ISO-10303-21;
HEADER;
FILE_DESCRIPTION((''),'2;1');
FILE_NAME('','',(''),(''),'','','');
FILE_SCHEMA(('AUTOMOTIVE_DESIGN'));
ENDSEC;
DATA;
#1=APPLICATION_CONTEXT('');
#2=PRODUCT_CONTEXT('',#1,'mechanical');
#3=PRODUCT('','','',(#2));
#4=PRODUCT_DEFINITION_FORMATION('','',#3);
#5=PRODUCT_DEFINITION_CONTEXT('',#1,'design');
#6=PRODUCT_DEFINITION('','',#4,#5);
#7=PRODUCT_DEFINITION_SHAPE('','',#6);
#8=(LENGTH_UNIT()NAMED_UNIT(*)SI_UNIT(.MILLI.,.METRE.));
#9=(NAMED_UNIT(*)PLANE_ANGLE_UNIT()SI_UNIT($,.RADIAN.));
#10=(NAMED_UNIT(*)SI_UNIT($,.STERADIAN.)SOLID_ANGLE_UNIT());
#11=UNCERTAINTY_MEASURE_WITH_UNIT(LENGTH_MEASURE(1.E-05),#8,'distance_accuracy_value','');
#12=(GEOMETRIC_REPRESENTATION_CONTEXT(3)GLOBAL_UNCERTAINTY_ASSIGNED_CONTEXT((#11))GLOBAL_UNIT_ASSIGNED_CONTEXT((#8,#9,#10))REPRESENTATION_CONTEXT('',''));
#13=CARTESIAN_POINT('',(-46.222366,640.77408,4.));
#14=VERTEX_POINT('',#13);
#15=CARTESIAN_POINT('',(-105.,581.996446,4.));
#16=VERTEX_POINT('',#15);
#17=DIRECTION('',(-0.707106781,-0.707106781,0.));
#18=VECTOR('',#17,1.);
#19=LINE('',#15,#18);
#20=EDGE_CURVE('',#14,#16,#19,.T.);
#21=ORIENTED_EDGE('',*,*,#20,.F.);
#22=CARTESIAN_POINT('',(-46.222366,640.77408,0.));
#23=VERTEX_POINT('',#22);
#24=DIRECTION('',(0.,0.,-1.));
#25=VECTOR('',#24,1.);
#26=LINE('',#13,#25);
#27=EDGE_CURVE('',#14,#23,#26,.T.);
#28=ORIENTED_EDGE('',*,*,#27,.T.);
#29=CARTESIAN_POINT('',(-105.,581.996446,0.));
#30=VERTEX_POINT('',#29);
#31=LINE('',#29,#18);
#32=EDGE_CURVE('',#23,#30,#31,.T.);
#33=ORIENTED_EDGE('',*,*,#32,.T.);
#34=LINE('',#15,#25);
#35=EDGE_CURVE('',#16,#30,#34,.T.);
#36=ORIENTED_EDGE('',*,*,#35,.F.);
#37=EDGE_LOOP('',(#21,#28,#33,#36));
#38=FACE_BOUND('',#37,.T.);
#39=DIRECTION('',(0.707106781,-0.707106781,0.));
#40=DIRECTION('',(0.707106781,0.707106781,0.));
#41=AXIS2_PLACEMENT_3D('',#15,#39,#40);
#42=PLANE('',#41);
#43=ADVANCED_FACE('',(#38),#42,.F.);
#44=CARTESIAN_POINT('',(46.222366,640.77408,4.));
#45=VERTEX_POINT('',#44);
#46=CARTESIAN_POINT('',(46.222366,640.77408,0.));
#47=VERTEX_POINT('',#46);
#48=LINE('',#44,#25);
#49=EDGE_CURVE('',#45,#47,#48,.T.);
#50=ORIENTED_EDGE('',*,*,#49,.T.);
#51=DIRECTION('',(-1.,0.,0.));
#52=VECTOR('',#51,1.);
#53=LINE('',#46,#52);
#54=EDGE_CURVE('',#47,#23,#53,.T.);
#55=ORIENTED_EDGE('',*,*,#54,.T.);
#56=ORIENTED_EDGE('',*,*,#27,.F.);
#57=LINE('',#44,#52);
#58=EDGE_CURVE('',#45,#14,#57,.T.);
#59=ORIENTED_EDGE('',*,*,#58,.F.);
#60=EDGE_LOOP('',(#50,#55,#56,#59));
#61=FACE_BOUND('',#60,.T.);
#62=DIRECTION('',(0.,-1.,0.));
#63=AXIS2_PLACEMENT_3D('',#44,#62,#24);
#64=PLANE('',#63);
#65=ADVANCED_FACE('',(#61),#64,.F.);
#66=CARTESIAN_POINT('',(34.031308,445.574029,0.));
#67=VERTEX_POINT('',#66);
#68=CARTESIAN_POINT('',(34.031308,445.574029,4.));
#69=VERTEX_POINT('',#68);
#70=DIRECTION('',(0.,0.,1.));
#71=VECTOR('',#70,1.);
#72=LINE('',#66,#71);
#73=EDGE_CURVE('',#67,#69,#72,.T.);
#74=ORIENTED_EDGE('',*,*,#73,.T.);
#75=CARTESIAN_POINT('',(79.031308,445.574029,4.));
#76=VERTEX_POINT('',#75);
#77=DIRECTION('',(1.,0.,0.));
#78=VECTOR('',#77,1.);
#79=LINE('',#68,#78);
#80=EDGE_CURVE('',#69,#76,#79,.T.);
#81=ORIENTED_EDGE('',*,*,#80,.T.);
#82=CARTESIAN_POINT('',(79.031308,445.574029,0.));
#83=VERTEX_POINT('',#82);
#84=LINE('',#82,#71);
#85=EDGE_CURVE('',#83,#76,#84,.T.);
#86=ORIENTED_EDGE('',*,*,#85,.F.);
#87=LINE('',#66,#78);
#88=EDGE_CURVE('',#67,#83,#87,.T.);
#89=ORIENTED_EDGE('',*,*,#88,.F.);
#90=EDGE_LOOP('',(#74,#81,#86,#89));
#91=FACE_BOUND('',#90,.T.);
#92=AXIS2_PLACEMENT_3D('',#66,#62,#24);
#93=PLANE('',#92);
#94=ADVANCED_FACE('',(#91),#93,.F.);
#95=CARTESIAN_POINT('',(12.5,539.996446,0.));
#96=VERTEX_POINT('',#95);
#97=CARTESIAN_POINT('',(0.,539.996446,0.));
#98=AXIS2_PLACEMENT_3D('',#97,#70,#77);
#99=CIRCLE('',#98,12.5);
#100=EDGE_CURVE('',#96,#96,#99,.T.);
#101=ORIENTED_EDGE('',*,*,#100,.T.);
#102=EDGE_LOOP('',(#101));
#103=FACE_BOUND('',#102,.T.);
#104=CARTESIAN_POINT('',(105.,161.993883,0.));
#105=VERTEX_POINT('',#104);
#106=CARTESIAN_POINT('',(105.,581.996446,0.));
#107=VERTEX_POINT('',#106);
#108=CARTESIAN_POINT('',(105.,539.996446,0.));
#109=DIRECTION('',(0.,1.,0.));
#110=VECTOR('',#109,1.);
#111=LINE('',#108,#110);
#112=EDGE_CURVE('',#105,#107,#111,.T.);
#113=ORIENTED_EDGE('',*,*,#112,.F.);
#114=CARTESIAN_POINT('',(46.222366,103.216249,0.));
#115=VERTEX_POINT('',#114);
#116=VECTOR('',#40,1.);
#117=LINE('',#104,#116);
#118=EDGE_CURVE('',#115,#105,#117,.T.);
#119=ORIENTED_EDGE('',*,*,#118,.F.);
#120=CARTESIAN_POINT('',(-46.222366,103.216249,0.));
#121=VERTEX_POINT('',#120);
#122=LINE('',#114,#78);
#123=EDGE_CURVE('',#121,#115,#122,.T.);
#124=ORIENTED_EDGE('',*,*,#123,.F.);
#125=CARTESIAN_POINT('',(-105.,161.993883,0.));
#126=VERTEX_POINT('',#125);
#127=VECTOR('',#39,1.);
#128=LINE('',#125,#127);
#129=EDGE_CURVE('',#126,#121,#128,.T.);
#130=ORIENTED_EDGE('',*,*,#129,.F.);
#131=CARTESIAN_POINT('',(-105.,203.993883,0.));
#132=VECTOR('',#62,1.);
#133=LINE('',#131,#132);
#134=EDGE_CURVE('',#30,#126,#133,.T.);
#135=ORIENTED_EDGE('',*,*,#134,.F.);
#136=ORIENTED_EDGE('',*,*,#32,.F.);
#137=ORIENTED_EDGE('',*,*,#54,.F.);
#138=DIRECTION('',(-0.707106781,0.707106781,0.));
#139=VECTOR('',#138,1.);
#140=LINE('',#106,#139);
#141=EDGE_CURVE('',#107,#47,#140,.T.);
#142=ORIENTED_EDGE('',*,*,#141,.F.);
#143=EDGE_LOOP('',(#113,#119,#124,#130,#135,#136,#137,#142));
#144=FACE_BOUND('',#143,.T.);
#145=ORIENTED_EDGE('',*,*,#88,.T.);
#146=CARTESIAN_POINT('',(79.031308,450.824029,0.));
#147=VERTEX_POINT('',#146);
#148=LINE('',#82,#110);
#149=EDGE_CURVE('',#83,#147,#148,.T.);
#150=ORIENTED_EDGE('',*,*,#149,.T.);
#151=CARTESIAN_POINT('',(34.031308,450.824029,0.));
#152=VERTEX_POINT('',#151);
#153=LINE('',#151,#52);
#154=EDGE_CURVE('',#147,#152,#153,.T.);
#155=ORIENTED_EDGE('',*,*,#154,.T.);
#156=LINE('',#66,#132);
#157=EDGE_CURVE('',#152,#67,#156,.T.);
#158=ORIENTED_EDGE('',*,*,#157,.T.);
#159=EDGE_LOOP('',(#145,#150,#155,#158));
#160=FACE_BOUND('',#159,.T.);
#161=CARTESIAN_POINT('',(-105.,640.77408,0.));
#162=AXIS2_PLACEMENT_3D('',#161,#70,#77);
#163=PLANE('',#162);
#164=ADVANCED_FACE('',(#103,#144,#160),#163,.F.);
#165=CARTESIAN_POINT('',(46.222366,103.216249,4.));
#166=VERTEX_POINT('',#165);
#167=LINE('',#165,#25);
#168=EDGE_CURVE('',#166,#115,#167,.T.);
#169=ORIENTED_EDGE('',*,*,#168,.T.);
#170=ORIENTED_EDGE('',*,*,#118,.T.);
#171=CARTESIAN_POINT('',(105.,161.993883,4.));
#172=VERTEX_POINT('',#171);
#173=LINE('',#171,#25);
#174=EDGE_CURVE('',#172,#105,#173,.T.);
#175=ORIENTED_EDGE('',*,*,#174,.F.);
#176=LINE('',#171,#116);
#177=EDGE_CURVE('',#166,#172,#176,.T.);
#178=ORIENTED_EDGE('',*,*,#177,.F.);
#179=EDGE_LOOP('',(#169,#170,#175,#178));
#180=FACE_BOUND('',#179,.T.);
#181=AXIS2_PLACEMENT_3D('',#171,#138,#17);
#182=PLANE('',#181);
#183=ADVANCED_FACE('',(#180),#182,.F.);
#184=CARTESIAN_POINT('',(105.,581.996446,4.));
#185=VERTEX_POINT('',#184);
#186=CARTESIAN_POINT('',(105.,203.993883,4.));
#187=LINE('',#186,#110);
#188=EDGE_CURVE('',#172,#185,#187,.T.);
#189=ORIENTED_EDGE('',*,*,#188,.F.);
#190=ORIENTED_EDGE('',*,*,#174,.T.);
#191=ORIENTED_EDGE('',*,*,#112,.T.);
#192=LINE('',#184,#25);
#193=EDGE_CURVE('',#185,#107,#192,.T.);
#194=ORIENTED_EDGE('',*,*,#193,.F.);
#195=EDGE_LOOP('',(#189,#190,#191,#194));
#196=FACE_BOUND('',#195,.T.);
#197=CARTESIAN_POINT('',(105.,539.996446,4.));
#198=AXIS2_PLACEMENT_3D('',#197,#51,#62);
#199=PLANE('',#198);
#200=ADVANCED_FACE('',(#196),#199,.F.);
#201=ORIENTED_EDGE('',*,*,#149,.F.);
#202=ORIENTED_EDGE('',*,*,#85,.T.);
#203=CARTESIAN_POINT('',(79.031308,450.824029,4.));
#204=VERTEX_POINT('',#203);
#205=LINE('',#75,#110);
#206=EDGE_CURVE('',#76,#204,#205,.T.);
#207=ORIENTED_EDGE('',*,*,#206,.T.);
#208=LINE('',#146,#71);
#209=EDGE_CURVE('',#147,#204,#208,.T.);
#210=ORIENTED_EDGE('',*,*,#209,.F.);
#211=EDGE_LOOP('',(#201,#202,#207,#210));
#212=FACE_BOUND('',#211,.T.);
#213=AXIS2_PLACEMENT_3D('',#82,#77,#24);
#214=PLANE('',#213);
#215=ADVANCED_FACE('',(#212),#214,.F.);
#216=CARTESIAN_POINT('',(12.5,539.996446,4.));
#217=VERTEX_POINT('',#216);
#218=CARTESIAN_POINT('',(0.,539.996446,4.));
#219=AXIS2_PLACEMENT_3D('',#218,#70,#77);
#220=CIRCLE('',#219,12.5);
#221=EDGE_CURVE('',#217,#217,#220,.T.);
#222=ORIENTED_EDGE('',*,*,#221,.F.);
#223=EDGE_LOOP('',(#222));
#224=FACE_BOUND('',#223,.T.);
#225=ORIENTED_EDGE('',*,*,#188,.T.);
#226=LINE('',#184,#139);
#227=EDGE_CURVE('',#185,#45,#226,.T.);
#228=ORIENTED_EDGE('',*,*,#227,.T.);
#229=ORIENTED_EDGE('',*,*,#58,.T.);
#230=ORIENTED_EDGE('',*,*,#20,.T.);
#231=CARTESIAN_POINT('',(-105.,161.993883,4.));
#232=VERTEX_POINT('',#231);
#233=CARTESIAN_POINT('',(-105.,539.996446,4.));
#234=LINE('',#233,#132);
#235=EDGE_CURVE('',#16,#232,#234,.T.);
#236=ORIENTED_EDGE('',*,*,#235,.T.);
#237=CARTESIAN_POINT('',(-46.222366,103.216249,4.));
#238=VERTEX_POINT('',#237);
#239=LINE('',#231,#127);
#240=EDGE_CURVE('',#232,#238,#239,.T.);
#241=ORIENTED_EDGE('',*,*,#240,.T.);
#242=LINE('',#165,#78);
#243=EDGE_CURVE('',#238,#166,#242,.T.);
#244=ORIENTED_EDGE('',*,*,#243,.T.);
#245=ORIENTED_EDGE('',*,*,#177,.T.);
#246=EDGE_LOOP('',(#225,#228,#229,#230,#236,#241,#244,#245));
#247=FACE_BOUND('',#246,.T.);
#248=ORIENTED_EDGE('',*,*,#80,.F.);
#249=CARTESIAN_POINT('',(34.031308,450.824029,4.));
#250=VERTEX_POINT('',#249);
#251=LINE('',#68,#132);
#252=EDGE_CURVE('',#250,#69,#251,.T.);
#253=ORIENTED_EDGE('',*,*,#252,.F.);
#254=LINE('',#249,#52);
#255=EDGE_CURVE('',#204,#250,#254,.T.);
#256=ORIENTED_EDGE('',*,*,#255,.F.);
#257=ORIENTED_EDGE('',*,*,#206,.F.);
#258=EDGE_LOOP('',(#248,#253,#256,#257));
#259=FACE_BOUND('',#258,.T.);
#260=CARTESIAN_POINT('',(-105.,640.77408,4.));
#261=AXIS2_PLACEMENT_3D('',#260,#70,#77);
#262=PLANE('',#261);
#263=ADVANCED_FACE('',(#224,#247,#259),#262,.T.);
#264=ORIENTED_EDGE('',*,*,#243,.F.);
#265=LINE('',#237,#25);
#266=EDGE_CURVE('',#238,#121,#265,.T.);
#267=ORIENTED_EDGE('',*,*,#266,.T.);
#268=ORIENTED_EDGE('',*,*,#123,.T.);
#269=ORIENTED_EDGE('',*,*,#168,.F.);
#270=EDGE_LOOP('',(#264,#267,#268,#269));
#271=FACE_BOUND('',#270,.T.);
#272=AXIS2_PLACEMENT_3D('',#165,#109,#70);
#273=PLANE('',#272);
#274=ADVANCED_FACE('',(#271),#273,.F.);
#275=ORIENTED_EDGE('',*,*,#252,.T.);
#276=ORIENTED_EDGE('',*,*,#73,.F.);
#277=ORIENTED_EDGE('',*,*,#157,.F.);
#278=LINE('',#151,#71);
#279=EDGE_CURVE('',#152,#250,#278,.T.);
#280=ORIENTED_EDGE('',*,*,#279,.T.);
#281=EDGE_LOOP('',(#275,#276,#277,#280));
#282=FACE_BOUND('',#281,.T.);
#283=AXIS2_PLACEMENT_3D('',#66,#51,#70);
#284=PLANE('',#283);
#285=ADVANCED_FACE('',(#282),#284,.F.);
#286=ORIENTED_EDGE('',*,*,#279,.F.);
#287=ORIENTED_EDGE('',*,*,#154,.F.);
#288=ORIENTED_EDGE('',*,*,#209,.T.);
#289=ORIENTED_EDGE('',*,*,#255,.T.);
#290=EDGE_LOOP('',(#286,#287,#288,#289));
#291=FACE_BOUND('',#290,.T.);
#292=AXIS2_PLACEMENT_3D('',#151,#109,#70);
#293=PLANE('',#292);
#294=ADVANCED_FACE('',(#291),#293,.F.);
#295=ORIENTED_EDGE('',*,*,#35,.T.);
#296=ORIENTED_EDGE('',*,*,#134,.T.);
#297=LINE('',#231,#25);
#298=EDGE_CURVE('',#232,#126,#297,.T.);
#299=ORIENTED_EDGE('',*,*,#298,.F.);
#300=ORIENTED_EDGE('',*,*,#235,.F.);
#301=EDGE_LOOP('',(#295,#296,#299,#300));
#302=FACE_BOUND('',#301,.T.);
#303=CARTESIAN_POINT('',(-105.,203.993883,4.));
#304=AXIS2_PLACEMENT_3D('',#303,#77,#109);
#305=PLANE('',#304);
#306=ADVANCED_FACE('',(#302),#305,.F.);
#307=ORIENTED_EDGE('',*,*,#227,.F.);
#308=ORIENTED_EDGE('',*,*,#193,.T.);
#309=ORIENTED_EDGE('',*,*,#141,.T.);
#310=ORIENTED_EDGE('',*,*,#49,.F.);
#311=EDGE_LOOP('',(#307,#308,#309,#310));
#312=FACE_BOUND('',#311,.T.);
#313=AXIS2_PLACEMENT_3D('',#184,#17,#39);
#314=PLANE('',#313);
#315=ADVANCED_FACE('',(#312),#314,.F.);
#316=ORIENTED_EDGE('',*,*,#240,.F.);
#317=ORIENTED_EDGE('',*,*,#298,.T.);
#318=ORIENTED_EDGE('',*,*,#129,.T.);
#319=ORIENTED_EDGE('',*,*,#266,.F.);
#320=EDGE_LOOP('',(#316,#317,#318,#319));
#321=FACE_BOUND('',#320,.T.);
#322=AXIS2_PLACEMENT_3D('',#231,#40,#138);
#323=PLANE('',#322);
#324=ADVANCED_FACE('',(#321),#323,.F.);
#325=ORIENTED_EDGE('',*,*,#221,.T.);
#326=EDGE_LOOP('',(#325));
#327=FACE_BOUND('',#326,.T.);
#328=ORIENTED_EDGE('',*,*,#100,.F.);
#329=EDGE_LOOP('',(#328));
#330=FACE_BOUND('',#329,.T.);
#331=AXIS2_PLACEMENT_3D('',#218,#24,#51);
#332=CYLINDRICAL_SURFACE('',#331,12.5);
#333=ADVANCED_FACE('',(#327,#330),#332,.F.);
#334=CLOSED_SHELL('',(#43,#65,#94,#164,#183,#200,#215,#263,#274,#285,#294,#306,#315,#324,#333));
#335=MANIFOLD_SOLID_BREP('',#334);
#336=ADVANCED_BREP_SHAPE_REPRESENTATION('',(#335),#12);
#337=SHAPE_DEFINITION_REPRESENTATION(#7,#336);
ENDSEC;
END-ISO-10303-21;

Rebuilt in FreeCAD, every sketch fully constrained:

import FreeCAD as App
import Part
import Sketcher

V = App.Vector
Q = App.Units.Quantity


def add_polygon(sketch, points):
    """Adds a closed chain of lines whose ends are joined by coincident constraints."""
    first, n = sketch.GeometryCount, len(points)
    for a, b in zip(points, points[1:] + points[:1]):
        sketch.addGeometry(Part.LineSegment(App.Vector(*a, 0), App.Vector(*b, 0)), False)
    for i in range(n):
        sketch.addConstraint(Sketcher.Constraint("Coincident", first + i, 2, first + (i + 1) % n, 1))

doc = App.newDocument("Part")
body = doc.addObject("PartDesign::Body", "Body")

sketch1 = body.newObject("Sketcher::SketchObject", "Sketch")
sketch1.AttachmentSupport = (doc.getObject("XY_Plane"), [""])
sketch1.MapMode = "FlatFace"
add_polygon(sketch1, [(-105, 162), (-46, 103), (46, 103), (105, 162), (105, 582), (46, 641), (-46, 641), (-105, 582)])
sketch1.addGeometry(Part.Circle(V(0, 540, 0), V(0, 0, 1), 12), False)
sketch1.addConstraint(Sketcher.Constraint("Horizontal", 1))
sketch1.addConstraint(Sketcher.Constraint("Vertical", 3))
sketch1.addConstraint(Sketcher.Constraint("Horizontal", 5))
sketch1.addConstraint(Sketcher.Constraint("Vertical", 7))
sketch1.addConstraint(Sketcher.Constraint("Symmetric", 3, 2, 6, 2, -2))
sketch1.addConstraint(Sketcher.Constraint("PointOnObject", 8, 3, -2))
sketch1.addConstraint(Sketcher.Constraint("Perpendicular", 0, 2))
sketch1.addConstraint(Sketcher.Constraint("Perpendicular", 2, 4))
sketch1.addConstraint(Sketcher.Constraint("Perpendicular", 4, 6))
sketch1.addConstraint(Sketcher.Constraint("Horizontal", 2, 2, 7, 2))
sketch1.addConstraint(Sketcher.Constraint("Vertical", 1, 2, 4, 2))
sketch1.addConstraint(Sketcher.Constraint("Vertical", 0, 2, 5, 2))
sketch1.addConstraint(Sketcher.Constraint("Diameter", 8, Q("25 mm")))
sketch1.addConstraint(Sketcher.Constraint("DistanceX", -1, 1, 2, 2, Q("105 mm")))
sketch1.addConstraint(Sketcher.Constraint("DistanceY", 8, 3, 3, 2, Q("42 mm")))
sketch1.addConstraint(Sketcher.Constraint("DistanceX", 1, 1, 1, 2, Q("92.444733 mm")))
sketch1.addConstraint(Sketcher.Constraint("DistanceY", 3, 1, 3, 2, Q("420.002563 mm")))
sketch1.addConstraint(Sketcher.Constraint("DistanceY", -1, 1, 0, 2, Q("103.216249 mm")))
pad1 = body.newObject("PartDesign::Pad", "Pad")
pad1.Profile = sketch1
pad1.Length = 4

sketch2 = body.newObject("Sketcher::SketchObject", "Sketch001")
sketch2.AttachmentSupport = (doc.getObject("XY_Plane"), [""])
sketch2.MapMode = "FlatFace"
sketch2.AttachmentOffset = App.Placement(V(0, 0, 4), App.Rotation())
add_polygon(sketch2, [(34, 451), (34, 446), (79, 446), (79, 451)])
sketch2.addConstraint(Sketcher.Constraint("Vertical", 0))
sketch2.addConstraint(Sketcher.Constraint("Horizontal", 1))
sketch2.addConstraint(Sketcher.Constraint("Vertical", 2))
sketch2.addConstraint(Sketcher.Constraint("Horizontal", 3))
sketch2.addConstraint(Sketcher.Constraint("DistanceX", 1, 1, 1, 2, Q("45 mm")))
sketch2.addConstraint(Sketcher.Constraint("DistanceY", 0, 2, 0, 1, Q("5.25 mm")))
sketch2.addConstraint(Sketcher.Constraint("DistanceY", -1, 1, 0, 2, Q("445.574029 mm")))
sketch2.addConstraint(Sketcher.Constraint("DistanceX", -1, 1, 0, 2, Q("34.031308 mm")))
pocket1 = body.newObject("PartDesign::Pocket", "Pocket")
pocket1.Profile = sketch2
pocket1.Type = "ThroughAll"

doc.recompute()
